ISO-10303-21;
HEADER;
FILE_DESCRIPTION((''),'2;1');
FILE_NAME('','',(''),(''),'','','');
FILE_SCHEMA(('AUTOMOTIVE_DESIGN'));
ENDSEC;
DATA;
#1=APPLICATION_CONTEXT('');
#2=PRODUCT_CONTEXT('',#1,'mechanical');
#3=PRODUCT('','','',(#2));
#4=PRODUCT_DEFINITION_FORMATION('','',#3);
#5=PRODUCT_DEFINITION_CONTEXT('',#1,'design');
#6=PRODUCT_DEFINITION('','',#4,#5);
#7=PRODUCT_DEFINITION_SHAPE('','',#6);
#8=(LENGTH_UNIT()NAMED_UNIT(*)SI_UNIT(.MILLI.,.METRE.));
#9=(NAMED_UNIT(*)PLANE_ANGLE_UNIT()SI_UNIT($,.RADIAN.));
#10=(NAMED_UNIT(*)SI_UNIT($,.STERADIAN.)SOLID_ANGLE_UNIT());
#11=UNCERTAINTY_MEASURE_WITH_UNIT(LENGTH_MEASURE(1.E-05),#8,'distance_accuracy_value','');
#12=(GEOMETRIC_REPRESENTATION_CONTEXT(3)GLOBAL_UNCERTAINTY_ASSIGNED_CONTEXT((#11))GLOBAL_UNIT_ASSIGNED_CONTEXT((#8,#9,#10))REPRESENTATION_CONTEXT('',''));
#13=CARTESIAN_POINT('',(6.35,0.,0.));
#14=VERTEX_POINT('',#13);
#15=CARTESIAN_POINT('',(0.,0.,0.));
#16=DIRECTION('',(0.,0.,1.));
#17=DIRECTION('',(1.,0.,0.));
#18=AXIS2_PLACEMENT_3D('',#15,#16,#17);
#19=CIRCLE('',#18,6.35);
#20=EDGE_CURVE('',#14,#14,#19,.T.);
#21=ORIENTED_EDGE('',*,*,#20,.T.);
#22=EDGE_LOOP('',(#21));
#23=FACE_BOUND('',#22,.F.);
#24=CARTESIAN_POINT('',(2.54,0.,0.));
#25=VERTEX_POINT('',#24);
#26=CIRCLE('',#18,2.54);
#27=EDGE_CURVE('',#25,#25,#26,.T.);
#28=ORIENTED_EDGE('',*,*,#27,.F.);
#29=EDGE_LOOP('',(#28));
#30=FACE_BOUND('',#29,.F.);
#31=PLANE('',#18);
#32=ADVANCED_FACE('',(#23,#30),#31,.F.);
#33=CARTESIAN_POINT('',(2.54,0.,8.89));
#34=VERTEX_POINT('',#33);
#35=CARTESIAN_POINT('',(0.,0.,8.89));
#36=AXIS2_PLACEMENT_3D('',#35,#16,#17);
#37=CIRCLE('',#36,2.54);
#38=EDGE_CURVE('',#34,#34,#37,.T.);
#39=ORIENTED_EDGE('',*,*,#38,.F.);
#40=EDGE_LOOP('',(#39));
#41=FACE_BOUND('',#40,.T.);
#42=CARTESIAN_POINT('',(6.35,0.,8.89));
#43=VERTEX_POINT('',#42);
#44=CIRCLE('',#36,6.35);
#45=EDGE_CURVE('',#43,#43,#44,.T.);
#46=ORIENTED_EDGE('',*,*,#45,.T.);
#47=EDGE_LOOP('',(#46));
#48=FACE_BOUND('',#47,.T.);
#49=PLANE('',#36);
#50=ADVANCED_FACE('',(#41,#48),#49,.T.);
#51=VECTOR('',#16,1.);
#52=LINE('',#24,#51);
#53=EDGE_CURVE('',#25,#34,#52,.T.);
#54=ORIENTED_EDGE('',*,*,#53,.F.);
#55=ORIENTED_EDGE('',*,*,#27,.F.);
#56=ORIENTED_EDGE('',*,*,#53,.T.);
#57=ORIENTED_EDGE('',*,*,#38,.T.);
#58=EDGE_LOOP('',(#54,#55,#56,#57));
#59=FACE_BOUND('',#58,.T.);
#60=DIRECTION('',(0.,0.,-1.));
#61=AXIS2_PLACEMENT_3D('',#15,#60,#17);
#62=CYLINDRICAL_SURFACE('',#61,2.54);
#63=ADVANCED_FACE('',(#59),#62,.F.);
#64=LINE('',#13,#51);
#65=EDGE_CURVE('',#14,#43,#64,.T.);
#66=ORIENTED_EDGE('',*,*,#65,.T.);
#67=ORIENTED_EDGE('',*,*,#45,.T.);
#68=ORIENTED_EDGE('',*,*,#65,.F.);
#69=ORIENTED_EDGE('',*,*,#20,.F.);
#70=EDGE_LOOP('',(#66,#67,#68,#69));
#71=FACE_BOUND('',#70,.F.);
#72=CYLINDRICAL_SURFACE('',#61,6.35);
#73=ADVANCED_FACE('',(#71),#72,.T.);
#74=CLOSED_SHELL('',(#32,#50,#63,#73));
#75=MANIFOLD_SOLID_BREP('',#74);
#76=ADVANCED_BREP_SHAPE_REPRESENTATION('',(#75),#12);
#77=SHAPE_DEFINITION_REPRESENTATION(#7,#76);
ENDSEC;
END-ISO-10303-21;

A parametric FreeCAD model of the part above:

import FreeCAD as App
import Part
import Sketcher
Q = App.Units.Quantity

doc = App.newDocument("Part")
body = doc.addObject("PartDesign::Body", "Body")

# Sketch on XY plane
sketch1 = body.newObject("Sketcher::SketchObject", "Sketch")
sketch1.AttachmentSupport = (doc.getObject("XY_Plane"), [""])
sketch1.MapMode = "FlatFace"
sketch1.addGeometry(Part.Circle(App.Vector(0, 0, 0), App.Vector(0, 0, 1), 6.3), False)
sketch1.addGeometry(Part.Circle(App.Vector(0, 0, 0), App.Vector(0, 0, 1), 2.5), False)
sketch1.addConstraint(Sketcher.Constraint("Coincident", 0, 3, -1, 1))
sketch1.addConstraint(Sketcher.Constraint("Coincident", 1, 3, -1, 1))
sketch1.addConstraint(Sketcher.Constraint("Diameter", 0, Q("0.5 in")))
sketch1.addConstraint(Sketcher.Constraint("Diameter", 1, Q("0.2 in")))
pad1 = body.newObject("PartDesign::Pad", "Pad")
pad1.Profile = sketch1
pad1.Length = Q("0.35 in")

doc.recompute()
